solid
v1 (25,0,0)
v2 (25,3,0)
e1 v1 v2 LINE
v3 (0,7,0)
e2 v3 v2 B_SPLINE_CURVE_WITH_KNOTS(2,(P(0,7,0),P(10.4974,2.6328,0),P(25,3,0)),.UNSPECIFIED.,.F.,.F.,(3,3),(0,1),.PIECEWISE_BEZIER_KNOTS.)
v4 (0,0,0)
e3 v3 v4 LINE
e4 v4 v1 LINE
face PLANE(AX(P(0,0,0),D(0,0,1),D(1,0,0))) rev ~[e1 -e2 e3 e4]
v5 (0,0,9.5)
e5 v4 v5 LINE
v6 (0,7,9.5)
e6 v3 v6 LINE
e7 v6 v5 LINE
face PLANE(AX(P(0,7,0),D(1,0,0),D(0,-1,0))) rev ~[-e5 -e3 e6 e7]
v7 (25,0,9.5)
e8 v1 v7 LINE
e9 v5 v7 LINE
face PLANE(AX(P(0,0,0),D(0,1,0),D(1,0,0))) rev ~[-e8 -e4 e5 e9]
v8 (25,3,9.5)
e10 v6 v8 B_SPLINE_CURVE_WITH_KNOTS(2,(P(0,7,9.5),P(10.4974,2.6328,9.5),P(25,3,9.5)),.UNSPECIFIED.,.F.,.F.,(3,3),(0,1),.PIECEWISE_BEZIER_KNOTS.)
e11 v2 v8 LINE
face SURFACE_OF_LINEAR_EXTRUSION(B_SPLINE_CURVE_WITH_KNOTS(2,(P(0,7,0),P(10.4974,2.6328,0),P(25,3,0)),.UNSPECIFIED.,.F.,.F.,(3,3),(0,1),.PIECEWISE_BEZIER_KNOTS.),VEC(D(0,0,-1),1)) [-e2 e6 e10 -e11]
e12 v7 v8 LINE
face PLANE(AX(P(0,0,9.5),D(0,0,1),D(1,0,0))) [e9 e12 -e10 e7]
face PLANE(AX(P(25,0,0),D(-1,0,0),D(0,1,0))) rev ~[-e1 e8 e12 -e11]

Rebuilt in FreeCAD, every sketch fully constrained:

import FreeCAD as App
import Part
import Sketcher

doc = App.newDocument("Part")
body = doc.addObject("PartDesign::Body", "Body")

# Sketch on XY plane
sketch1 = body.newObject("Sketcher::SketchObject", "Sketch")
sketch1.AttachmentSupport = (doc.getObject("XY_Plane"), [""])
sketch1.MapMode = "FlatFace"
sketch1.addGeometry(Part.LineSegment(App.Vector(0, 7, 0), App.Vector(0, 0, 0)), False)
sketch1.addGeometry(Part.LineSegment(App.Vector(0, 0, 0), App.Vector(25, 0, 0)), False)
sketch1.addGeometry(Part.LineSegment(App.Vector(25, 0, 0), App.Vector(25, 3, 0)), False)
sketch1.addGeometry(Part.BSplineCurve([App.Vector(0, 7, 0), App.Vector(10.4974, 2.6328, 0), App.Vector(25, 3, 0)], [3, 3], [0, 1], False, 2, [1, 1, 1], False), False)
sketch1.addConstraint(Sketcher.Constraint("Block", 3))
sketch1.addConstraint(Sketcher.Constraint("Coincident", 0, 2, 1, 1))
sketch1.addConstraint(Sketcher.Constraint("Coincident", 1, 2, 2, 1))
sketch1.addConstraint(Sketcher.Constraint("Coincident", 2, 2, 3, 2))
sketch1.addConstraint(Sketcher.Constraint("Coincident", 3, 1, 0, 1))
sketch1.addConstraint(Sketcher.Constraint("Vertical", 0))
sketch1.addConstraint(Sketcher.Constraint("Horizontal", 1))
sketch1.addConstraint(Sketcher.Constraint("Vertical", 2))
sketch1.addConstraint(Sketcher.Constraint("PointOnObject", 1, 2, -1))
pad1 = body.newObject("PartDesign::Pad", "Pad")
pad1.Profile = sketch1
pad1.Length = 9.5

doc.recompute()
